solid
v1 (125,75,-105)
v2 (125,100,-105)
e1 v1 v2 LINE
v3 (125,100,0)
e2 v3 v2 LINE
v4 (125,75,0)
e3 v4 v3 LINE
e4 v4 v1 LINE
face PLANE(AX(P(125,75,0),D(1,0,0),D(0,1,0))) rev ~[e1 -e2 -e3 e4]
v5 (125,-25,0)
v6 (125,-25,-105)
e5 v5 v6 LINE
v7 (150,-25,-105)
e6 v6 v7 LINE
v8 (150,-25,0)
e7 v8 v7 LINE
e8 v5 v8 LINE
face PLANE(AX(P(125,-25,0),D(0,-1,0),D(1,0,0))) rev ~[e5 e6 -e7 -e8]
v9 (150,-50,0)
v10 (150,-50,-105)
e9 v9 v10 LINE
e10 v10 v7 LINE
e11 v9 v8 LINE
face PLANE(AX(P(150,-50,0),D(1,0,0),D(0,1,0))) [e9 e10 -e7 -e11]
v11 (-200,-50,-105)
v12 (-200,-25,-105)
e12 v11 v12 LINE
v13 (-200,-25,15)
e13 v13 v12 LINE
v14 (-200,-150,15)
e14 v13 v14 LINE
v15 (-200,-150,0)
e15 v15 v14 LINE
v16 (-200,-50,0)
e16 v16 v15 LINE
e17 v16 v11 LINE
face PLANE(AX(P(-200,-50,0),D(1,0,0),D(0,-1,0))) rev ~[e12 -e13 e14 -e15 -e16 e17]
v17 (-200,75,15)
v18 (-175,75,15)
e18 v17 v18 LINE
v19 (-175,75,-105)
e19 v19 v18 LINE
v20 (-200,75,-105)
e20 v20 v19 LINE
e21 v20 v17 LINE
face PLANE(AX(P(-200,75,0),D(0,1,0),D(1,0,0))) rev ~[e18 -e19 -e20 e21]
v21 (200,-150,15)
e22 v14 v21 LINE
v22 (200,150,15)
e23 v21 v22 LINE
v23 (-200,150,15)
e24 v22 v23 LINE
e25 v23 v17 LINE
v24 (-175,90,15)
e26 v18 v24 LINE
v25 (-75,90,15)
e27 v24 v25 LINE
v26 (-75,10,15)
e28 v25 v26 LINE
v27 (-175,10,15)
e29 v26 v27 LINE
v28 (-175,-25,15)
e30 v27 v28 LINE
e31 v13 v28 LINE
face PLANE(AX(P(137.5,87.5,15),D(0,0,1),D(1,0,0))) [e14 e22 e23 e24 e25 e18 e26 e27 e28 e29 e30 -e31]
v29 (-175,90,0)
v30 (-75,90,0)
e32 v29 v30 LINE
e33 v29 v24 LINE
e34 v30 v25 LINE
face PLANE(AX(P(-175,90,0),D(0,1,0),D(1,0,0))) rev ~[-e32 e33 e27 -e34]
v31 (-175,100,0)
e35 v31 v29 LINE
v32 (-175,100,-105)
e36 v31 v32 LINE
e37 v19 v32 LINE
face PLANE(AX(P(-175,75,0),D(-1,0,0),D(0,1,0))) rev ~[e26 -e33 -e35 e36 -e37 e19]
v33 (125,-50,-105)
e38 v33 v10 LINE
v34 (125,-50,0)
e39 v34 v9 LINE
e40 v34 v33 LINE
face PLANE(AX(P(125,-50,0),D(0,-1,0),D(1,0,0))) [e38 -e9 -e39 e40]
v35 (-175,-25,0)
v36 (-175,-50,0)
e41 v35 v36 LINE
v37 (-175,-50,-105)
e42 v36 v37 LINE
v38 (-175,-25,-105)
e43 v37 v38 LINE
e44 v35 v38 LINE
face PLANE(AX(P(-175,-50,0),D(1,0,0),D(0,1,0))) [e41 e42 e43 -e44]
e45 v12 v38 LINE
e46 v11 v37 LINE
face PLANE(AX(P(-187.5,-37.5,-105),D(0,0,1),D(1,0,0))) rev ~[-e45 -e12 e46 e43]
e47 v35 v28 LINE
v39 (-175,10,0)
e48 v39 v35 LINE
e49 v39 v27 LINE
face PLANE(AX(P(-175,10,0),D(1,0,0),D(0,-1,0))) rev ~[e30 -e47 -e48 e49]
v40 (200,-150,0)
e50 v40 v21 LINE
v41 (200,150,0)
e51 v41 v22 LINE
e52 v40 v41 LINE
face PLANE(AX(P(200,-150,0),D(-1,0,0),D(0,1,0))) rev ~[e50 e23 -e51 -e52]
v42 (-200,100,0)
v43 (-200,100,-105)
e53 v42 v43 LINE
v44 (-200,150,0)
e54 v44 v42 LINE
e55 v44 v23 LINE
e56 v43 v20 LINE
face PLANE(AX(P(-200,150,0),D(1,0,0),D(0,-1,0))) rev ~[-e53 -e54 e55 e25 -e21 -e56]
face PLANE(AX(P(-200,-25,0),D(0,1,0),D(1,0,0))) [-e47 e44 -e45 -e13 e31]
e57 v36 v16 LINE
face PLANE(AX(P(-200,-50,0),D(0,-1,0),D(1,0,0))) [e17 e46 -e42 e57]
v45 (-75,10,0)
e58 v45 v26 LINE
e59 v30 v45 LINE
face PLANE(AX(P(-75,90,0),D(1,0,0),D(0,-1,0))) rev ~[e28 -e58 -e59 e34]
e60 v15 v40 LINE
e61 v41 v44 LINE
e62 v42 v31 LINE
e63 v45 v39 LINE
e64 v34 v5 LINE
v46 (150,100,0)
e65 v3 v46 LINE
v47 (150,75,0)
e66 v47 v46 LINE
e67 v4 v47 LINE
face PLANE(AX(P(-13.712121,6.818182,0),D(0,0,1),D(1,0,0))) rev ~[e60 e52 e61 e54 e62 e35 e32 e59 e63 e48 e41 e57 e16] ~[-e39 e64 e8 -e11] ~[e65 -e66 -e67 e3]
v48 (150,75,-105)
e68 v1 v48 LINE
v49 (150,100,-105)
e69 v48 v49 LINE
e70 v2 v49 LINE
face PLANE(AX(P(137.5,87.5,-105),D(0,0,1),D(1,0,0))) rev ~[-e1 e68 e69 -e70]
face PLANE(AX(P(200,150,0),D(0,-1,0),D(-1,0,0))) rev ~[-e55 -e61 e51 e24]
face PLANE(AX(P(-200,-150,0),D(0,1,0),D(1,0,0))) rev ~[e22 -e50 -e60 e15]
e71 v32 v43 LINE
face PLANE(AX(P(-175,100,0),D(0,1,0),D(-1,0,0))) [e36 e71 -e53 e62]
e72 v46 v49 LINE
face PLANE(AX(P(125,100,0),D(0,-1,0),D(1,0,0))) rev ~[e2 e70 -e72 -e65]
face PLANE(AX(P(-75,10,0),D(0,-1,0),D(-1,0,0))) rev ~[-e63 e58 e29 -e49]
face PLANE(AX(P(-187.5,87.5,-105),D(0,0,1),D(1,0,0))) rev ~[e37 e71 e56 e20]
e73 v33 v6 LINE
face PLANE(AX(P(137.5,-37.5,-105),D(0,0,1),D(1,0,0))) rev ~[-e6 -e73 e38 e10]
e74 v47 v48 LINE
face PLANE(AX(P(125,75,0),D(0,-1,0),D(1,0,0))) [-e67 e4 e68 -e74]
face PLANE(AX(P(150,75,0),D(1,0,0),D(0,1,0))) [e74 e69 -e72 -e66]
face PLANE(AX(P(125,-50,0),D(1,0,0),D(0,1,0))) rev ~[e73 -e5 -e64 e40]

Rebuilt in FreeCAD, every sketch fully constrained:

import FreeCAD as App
import Part
import Sketcher


def add_polygon(sketch, points):
    """Adds a closed chain of lines whose ends are joined by coincident constraints."""
    first, n = sketch.GeometryCount, len(points)
    for a, b in zip(points, points[1:] + points[:1]):
        sketch.addGeometry(Part.LineSegment(App.Vector(*a, 0), App.Vector(*b, 0)), False)
    for i in range(n):
        sketch.addConstraint(Sketcher.Constraint("Coincident", first + i, 2, first + (i + 1) % n, 1))

doc = App.newDocument("Part")
body = doc.addObject("PartDesign::Body", "Body")
body.AllowCompound = True

sketch1 = body.newObject("Sketcher::SketchObject", "Sketch")
sketch1.AttachmentSupport = (doc.getObject("XY_Plane"), [""])
sketch1.MapMode = "FlatFace"
add_polygon(sketch1, [(200, 150), (-200, 150), (-200, 100), (-175, 100), (-175, 90), (-75, 90), (-75, 10), (-175, 10), (-175, -50), (-200, -50), (-200, -150), (200, -150)])
add_polygon(sketch1, [(150, -50), (125, -50), (125, -25), (150, -25)])
add_polygon(sketch1, [(150, 75), (125, 75), (125, 100), (150, 100)])
sketch1.addConstraint(Sketcher.Constraint("Horizontal", 0))
sketch1.addConstraint(Sketcher.Constraint("Vertical", 1))
sketch1.addConstraint(Sketcher.Constraint("Horizontal", 2))
sketch1.addConstraint(Sketcher.Constraint("Vertical", 3))
sketch1.addConstraint(Sketcher.Constraint("Horizontal", 4))
sketch1.addConstraint(Sketcher.Constraint("Vertical", 5))
sketch1.addConstraint(Sketcher.Constraint("Horizontal", 6))
sketch1.addConstraint(Sketcher.Constraint("Vertical", 7))
sketch1.addConstraint(Sketcher.Constraint("Horizontal", 8))
sketch1.addConstraint(Sketcher.Constraint("Vertical", 9))
sketch1.addConstraint(Sketcher.Constraint("Horizontal", 10))
sketch1.addConstraint(Sketcher.Constraint("Vertical", 11))
sketch1.addConstraint(Sketcher.Constraint("Horizontal", 12))
sketch1.addConstraint(Sketcher.Constraint("Vertical", 13))
sketch1.addConstraint(Sketcher.Constraint("Horizontal", 14))
sketch1.addConstraint(Sketcher.Constraint("Vertical", 15))
sketch1.addConstraint(Sketcher.Constraint("Horizontal", 16))
sketch1.addConstraint(Sketcher.Constraint("Vertical", 17))
sketch1.addConstraint(Sketcher.Constraint("Horizontal", 18))
sketch1.addConstraint(Sketcher.Constraint("Vertical", 19))
sketch1.addConstraint(Sketcher.Constraint("Symmetric", 0, 2, 10, 2, -1, 1))
sketch1.addConstraint(Sketcher.Constraint("Horizontal", 8, 2, 12, 2))
sketch1.addConstraint(Sketcher.Constraint("Horizontal", 2, 2, 17, 2))
sketch1.addConstraint(Sketcher.Constraint("Vertical", 3, 2, 6, 2))
sketch1.addConstraint(Sketcher.Constraint("Vertical", 1, 2, 8, 2))
sketch1.addConstraint(Sketcher.Constraint("Vertical", 13, 2, 16, 2))
sketch1.addConstraint(Sketcher.Constraint("Vertical", 15, 2, 18, 2))
sketch1.addConstraint(Sketcher.Constraint("Equal", 8, 12))
sketch1.addConstraint(Sketcher.Constraint("Equal", 6, 9))
sketch1.addConstraint(Sketcher.Constraint("Equal", 18, 13))
sketch1.addConstraint(Sketcher.Constraint("Equal", 15, 17))
sketch1.addConstraint(Sketcher.Constraint("DistanceX", 0, 2, 0, 1, 400.0))
sketch1.addConstraint(Sketcher.Constraint("DistanceX", 2, 1, 2, 2, 25.0))
sketch1.addConstraint(Sketcher.Constraint("DistanceX", 4, 1, 4, 2, 100.0))
sketch1.addConstraint(Sketcher.Constraint("DistanceY", 1, 2, 1, 1, 50.0))
sketch1.addConstraint(Sketcher.Constraint("DistanceY", 3, 2, 3, 1, 10.0))
sketch1.addConstraint(Sketcher.Constraint("DistanceY", 5, 2, 5, 1, 80.0))
sketch1.addConstraint(Sketcher.Constraint("DistanceY", 7, 2, 7, 1, 60.0))
sketch1.addConstraint(Sketcher.Constraint("DistanceX", -1, 1, 12, 2, 125.0))
pad1 = body.newObject("PartDesign::Pad", "Pad")
pad1.Profile = sketch1
pad1.Length = 15

sketch2 = body.newObject("Sketcher::SketchObject", "Sketch001")
sketch2.AttachmentSupport = (doc.getObject("XY_Plane"), [""])
sketch2.MapMode = "FlatFace"
add_polygon(sketch2, [(-175, 100), (-200, 100), (-200, 75), (-175, 75)])
add_polygon(sketch2, [(-200, -25), (-200, -50), (-175, -50), (-175, -25)])
add_polygon(sketch2, [(125, -25), (125, -50), (150, -50), (150, -25)])
add_polygon(sketch2, [(125, 100), (125, 75), (150, 75), (150, 100)])
sketch2.addConstraint(Sketcher.Constraint("Horizontal", 0))
sketch2.addConstraint(Sketcher.Constraint("Vertical", 1))
sketch2.addConstraint(Sketcher.Constraint("Horizontal", 2))
sketch2.addConstraint(Sketcher.Constraint("Vertical", 3))
sketch2.addConstraint(Sketcher.Constraint("Vertical", 4))
sketch2.addConstraint(Sketcher.Constraint("Horizontal", 5))
sketch2.addConstraint(Sketcher.Constraint("Vertical", 6))
sketch2.addConstraint(Sketcher.Constraint("Horizontal", 7))
sketch2.addConstraint(Sketcher.Constraint("Vertical", 8))
sketch2.addConstraint(Sketcher.Constraint("Horizontal", 9))
sketch2.addConstraint(Sketcher.Constraint("Vertical", 10))
sketch2.addConstraint(Sketcher.Constraint("Horizontal", 11))
sketch2.addConstraint(Sketcher.Constraint("Vertical", 12))
sketch2.addConstraint(Sketcher.Constraint("Horizontal", 13))
sketch2.addConstraint(Sketcher.Constraint("Vertical", 14))
sketch2.addConstraint(Sketcher.Constraint("Horizontal", 15))
sketch2.addConstraint(Sketcher.Constraint("Horizontal", 5, 2, 8, 2))
sketch2.addConstraint(Sketcher.Constraint("Horizontal", 7, 2, 10, 2))
sketch2.addConstraint(Sketcher.Constraint("Horizontal", 2, 2, 12, 2))
sketch2.addConstraint(Sketcher.Constraint("Horizontal", 3, 2, 14, 2))
sketch2.addConstraint(Sketcher.Constraint("Vertical", 1, 2, 4, 2))
sketch2.addConstraint(Sketcher.Constraint("Vertical", 3, 2, 5, 2))
sketch2.addConstraint(Sketcher.Constraint("Vertical", 11, 2, 12, 2))
sketch2.addConstraint(Sketcher.Constraint("Vertical", 10, 2, 13, 2))
sketch2.addConstraint(Sketcher.Constraint("Equal", 7, 9))
sketch2.addConstraint(Sketcher.Constraint("Equal", 15, 1))
sketch2.addConstraint(Sketcher.Constraint("Equal", 3, 4))
sketch2.addConstraint(Sketcher.Constraint("DistanceX", 0, 2, 0, 1, 25.0))
sketch2.addConstraint(Sketcher.Constraint("DistanceX", 0, 2, -1, 1, 200.0))
sketch2.addConstraint(Sketcher.Constraint("DistanceY", -1, 1, 0, 2, 100.0))
sketch2.addConstraint(Sketcher.Constraint("DistanceY", 4, 2, -1, 1, 50.0))
sketch2.addConstraint(Sketcher.Constraint("DistanceX", -1, 1, 8, 2, 125.0))
pad2 = body.newObject("PartDesign::Pad", "Pad001")
pad2.Profile = sketch2
pad2.Length = 105
pad2.Reversed = True

sketch3 = body.newObject("Sketcher::SketchObject", "Sketch002")
sketch3.AttachmentSupport = (doc.getObject("XY_Plane"), [""])
sketch3.MapMode = "FlatFace"
add_polygon(sketch3, [(125, 100), (125, 75), (150, 75), (150, 100)])
add_polygon(sketch3, [(125, -25), (125, -50), (150, -50), (150, -25)])
add_polygon(sketch3, [(-200, -25), (-200, -50), (-175, -50), (-175, -25)])
add_polygon(sketch3, [(-175, 100), (-200, 100), (-200, 75), (-175, 75)])
sketch3.addConstraint(Sketcher.Constraint("Vertical", 0))
sketch3.addConstraint(Sketcher.Constraint("Horizontal", 1))
sketch3.addConstraint(Sketcher.Constraint("Vertical", 2))
sketch3.addConstraint(Sketcher.Constraint("Horizontal", 3))
sketch3.addConstraint(Sketcher.Constraint("Vertical", 4))
sketch3.addConstraint(Sketcher.Constraint("Horizontal", 5))
sketch3.addConstraint(Sketcher.Constraint("Vertical", 6))
sketch3.addConstraint(Sketcher.Constraint("Horizontal", 7))
sketch3.addConstraint(Sketcher.Constraint("Vertical", 8))
sketch3.addConstraint(Sketcher.Constraint("Horizontal", 9))
sketch3.addConstraint(Sketcher.Constraint("Vertical", 10))
sketch3.addConstraint(Sketcher.Constraint("Horizontal", 11))
sketch3.addConstraint(Sketcher.Constraint("Horizontal", 12))
sketch3.addConstraint(Sketcher.Constraint("Vertical", 13))
sketch3.addConstraint(Sketcher.Constraint("Horizontal", 14))
sketch3.addConstraint(Sketcher.Constraint("Vertical", 15))
sketch3.addConstraint(Sketcher.Constraint("Horizontal", 5, 2, 8, 2))
sketch3.addConstraint(Sketcher.Constraint("Horizontal", 7, 2, 10, 2))
sketch3.addConstraint(Sketcher.Constraint("Horizontal", 3, 2, 12, 2))
sketch3.addConstraint(Sketcher.Constraint("Horizontal", 1, 2, 13, 2))
sketch3.addConstraint(Sketcher.Constraint("Vertical", 3, 2, 4, 2))
sketch3.addConstraint(Sketcher.Constraint("Vertical", 2, 2, 5, 2))
sketch3.addConstraint(Sketcher.Constraint("Vertical", 11, 2, 12, 2))
sketch3.addConstraint(Sketcher.Constraint("Vertical", 10, 2, 14, 2))
sketch3.addConstraint(Sketcher.Constraint("Equal", 7, 9))
sketch3.addConstraint(Sketcher.Constraint("Equal", 14, 0))
sketch3.addConstraint(Sketcher.Constraint("Equal", 2, 4))
sketch3.addConstraint(Sketcher.Constraint("DistanceX", 1, 1, 1, 2, 25.0))
sketch3.addConstraint(Sketcher.Constraint("DistanceX", -1, 1, 0, 2, 125.0))
sketch3.addConstraint(Sketcher.Constraint("DistanceY", -1, 1, 0, 2, 75.0))
sketch3.addConstraint(Sketcher.Constraint("DistanceY", 4, 2, -1, 1, 50.0))
sketch3.addConstraint(Sketcher.Constraint("DistanceX", 8, 2, -1, 1, 200.0))
pad3 = body.newObject("PartDesign::Pad", "Pad002")
pad3.Profile = sketch3
pad3.Length = 15

doc.recompute()
